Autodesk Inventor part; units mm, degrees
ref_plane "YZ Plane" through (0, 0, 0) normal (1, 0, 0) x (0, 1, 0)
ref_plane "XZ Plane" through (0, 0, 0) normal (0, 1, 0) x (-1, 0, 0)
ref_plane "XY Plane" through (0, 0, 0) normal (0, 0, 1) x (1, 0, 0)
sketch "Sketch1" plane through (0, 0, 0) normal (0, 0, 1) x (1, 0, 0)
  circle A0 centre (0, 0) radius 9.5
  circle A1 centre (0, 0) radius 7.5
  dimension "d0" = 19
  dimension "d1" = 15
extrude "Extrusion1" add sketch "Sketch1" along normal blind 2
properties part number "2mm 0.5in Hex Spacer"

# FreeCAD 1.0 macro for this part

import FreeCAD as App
import Part
import Sketcher
from FreeCAD import Vector

doc = App.newDocument("Part")
body = doc.addObject("PartDesign::Body", "Body")

# Sketch on XY plane
sketch1 = body.newObject("Sketcher::SketchObject", "Sketch")
sketch1.AttachmentSupport = (doc.getObject("XY_Plane"), [""])
sketch1.MapMode = "FlatFace"
sketch1.addGeometry(Part.Circle(Vector(0, 0, 0), Vector(0, 0, 1), 10), False)
sketch1.addGeometry(Part.Circle(Vector(0, 0, 0), Vector(0, 0, 1), 8), False)
sketch1.addConstraint(Sketcher.Constraint("Coincident", 0, 3, -1, 1))
sketch1.addConstraint(Sketcher.Constraint("Coincident", 1, 3, -1, 1))
sketch1.addConstraint(Sketcher.Constraint("Diameter", 0, 19.0))
sketch1.addConstraint(Sketcher.Constraint("Diameter", 1, 15.0))
pad1 = body.newObject("PartDesign::Pad", "Pad")
pad1.Profile = sketch1
pad1.Length = 2

doc.recompute()
